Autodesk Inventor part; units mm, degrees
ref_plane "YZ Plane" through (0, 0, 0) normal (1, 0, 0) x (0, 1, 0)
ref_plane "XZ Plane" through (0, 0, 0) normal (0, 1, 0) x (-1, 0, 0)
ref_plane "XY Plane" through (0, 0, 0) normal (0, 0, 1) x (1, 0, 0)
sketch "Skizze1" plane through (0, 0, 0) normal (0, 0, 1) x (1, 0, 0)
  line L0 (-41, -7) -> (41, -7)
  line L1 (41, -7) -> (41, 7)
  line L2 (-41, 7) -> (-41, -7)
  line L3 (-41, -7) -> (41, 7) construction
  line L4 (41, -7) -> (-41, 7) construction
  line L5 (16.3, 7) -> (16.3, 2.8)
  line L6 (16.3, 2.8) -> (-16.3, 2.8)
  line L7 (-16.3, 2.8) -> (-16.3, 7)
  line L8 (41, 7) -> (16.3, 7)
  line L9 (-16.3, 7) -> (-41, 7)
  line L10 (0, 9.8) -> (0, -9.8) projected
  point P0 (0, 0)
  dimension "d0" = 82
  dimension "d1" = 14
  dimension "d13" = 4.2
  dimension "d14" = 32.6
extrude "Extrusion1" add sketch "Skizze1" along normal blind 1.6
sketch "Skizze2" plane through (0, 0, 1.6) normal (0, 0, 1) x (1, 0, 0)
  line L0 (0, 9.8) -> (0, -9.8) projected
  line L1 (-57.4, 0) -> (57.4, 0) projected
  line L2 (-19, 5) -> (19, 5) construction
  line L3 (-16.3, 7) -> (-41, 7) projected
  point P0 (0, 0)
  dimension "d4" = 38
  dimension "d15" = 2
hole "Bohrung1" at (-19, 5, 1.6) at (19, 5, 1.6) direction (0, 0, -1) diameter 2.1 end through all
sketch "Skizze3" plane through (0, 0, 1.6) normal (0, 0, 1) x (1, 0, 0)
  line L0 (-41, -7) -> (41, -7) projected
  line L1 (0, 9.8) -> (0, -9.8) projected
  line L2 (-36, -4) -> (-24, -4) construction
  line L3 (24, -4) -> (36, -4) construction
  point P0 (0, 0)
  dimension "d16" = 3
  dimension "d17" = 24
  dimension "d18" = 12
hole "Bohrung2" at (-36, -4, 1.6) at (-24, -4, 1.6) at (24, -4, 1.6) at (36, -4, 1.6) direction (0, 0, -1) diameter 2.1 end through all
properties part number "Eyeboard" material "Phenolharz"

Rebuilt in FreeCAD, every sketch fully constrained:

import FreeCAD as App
import Part
import Sketcher

doc = App.newDocument("Part")
params = doc.addObject("Spreadsheet::Sheet", "Params")
for row, (alias, value) in enumerate([
    ("sketch1_width", "82 mm"),
    ("sketch1_height", "14 mm"),
    ("sketch1_width2", "32.6 mm"),
    ("sketch1_height2", "4.2 mm"),
    ("pad1_length", "1.6 mm"),
    ("sketch2_diameter", "2.1 mm"),
    ("hole_diameter", "2.1 mm"),
    ("sketch3_diameter", "2.1 mm"),
    ("hole2_diameter", "2.1 mm"),
], start=1):
    params.set(f"A{row}", alias)
    params.set(f"B{row}", "=" + value)
    params.setAlias(f"B{row}", alias)

body = doc.addObject("PartDesign::Body", "Body")

# Sketch on XY plane
sketch1 = doc.addObject("Sketcher::SketchObject", "Sketch")
body.addObject(sketch1)
sketch1.AttachmentSupport = (doc.XY_Plane, [""])
sketch1.MapMode = "FlatFace"
sketch1.addGeometry(Part.LineSegment(App.Vector(-41, 7, 0), App.Vector(-41, -7, 0)), False)
sketch1.addGeometry(Part.LineSegment(App.Vector(-41, -7, 0), App.Vector(41, -7, 0)), False)
sketch1.addGeometry(Part.LineSegment(App.Vector(41, -7, 0), App.Vector(41, 7, 0)), False)
sketch1.addGeometry(Part.LineSegment(App.Vector(41, 7, 0), App.Vector(16.3, 7, 0)), False)
sketch1.addGeometry(Part.LineSegment(App.Vector(16.3, 7, 0), App.Vector(16.3, 2.8, 0)), False)
sketch1.addGeometry(Part.LineSegment(App.Vector(16.3, 2.8, 0), App.Vector(-16.3, 2.8, 0)), False)
sketch1.addGeometry(Part.LineSegment(App.Vector(-16.3, 2.8, 0), App.Vector(-16.3, 7, 0)), False)
sketch1.addGeometry(Part.LineSegment(App.Vector(-16.3, 7, 0), App.Vector(-41, 7, 0)), False)
sketch1.addConstraint(Sketcher.Constraint("Coincident", 0, 2, 1, 1))
sketch1.addConstraint(Sketcher.Constraint("Coincident", 1, 2, 2, 1))
sketch1.addConstraint(Sketcher.Constraint("Coincident", 2, 2, 3, 1))
sketch1.addConstraint(Sketcher.Constraint("Coincident", 3, 2, 4, 1))
sketch1.addConstraint(Sketcher.Constraint("Coincident", 4, 2, 5, 1))
sketch1.addConstraint(Sketcher.Constraint("Coincident", 5, 2, 6, 1))
sketch1.addConstraint(Sketcher.Constraint("Coincident", 6, 2, 7, 1))
sketch1.addConstraint(Sketcher.Constraint("Coincident", 7, 2, 0, 1))
sketch1.addConstraint(Sketcher.Constraint("Vertical", 0))
sketch1.addConstraint(Sketcher.Constraint("Horizontal", 1))
sketch1.addConstraint(Sketcher.Constraint("Vertical", 2))
sketch1.addConstraint(Sketcher.Constraint("Horizontal", 3))
sketch1.addConstraint(Sketcher.Constraint("Vertical", 4))
sketch1.addConstraint(Sketcher.Constraint("Horizontal", 5))
sketch1.addConstraint(Sketcher.Constraint("Vertical", 6))
sketch1.addConstraint(Sketcher.Constraint("Horizontal", 7))
sketch1.addConstraint(Sketcher.Constraint("Symmetric", 0, 2, 2, 2, -1, 1))
sketch1.addConstraint(Sketcher.Constraint("Symmetric", 3, 2, 6, 2, -2))
sketch1.addConstraint(Sketcher.Constraint("DistanceX", 1, 1, 1, 2, 82.0))
sketch1.addConstraint(Sketcher.Constraint("DistanceY", 0, 2, 0, 1, 14.0))
sketch1.addConstraint(Sketcher.Constraint("DistanceX", 5, 2, 5, 1, 32.6))
sketch1.addConstraint(Sketcher.Constraint("DistanceY", 4, 2, 4, 1, 4.2))
sketch1.setExpression("Constraints[18]", "Params.sketch1_width")
sketch1.setExpression("Constraints[19]", "Params.sketch1_height")
sketch1.setExpression("Constraints[20]", "Params.sketch1_width2")
sketch1.setExpression("Constraints[21]", "Params.sketch1_height2")
pad1 = doc.addObject("PartDesign::Pad", "Pad")
body.addObject(pad1)
pad1.Profile = sketch1
pad1.setExpression("Length", "Params.pad1_length")

# Sketch on XY plane
sketch2 = doc.addObject("Sketcher::SketchObject", "Sketch001")
body.addObject(sketch2)
sketch2.AttachmentSupport = (doc.XY_Plane, [""])
sketch2.MapMode = "FlatFace"
sketch2.AttachmentOffset = App.Placement(App.Vector(0, 0, 1.6), App.Rotation())
sketch2.addGeometry(Part.Circle(App.Vector(-19, 5, 0), App.Vector(0, 0, 1), 1.1), False)
sketch2.addGeometry(Part.Circle(App.Vector(19, 5, 0), App.Vector(0, 0, 1), 1.1), False)
sketch2.addConstraint(Sketcher.Constraint("Equal", 0, 1))
sketch2.addConstraint(Sketcher.Constraint("Symmetric", 0, 3, 1, 3, -2))
sketch2.addConstraint(Sketcher.Constraint("Diameter", 0, 2.1))
sketch2.addConstraint(Sketcher.Constraint("DistanceX", 0, 3, -1, 1, 19.0))
sketch2.addConstraint(Sketcher.Constraint("DistanceY", -1, 1, 0, 3, 5.0))
sketch2.setExpression("Constraints[2]", "Params.sketch2_diameter")
doc.recompute()
hole = doc.addObject("PartDesign::Hole", "Hole")
body.addObject(hole)
hole.Profile = sketch2
hole.ThreadType = "None"
hole.setExpression("Diameter", "Params.hole_diameter")
hole.DepthType = "ThroughAll"

# Sketch on XY plane
sketch3 = doc.addObject("Sketcher::SketchObject", "Sketch002")
body.addObject(sketch3)
sketch3.AttachmentSupport = (doc.XY_Plane, [""])
sketch3.MapMode = "FlatFace"
sketch3.AttachmentOffset = App.Placement(App.Vector(0, 0, 1.6), App.Rotation())
sketch3.addGeometry(Part.Circle(App.Vector(-36, -4, 0), App.Vector(0, 0, 1), 1.1), False)
sketch3.addGeometry(Part.Circle(App.Vector(-24, -4, 0), App.Vector(0, 0, 1), 1.1), False)
sketch3.addGeometry(Part.Circle(App.Vector(24, -4, 0), App.Vector(0, 0, 1), 1.1), False)
sketch3.addGeometry(Part.Circle(App.Vector(36, -4, 0), App.Vector(0, 0, 1), 1.1), False)
sketch3.addConstraint(Sketcher.Constraint("Equal", 0, 1))
sketch3.addConstraint(Sketcher.Constraint("Equal", 1, 2))
sketch3.addConstraint(Sketcher.Constraint("Equal", 2, 3))
sketch3.addConstraint(Sketcher.Constraint("Symmetric", 1, 3, 2, 3, -2))
sketch3.addConstraint(Sketcher.Constraint("Symmetric", 0, 3, 3, 3, -2))
sketch3.addConstraint(Sketcher.Constraint("Horizontal", 0, 3, 1, 3))
sketch3.addConstraint(Sketcher.Constraint("Diameter", 0, 2.1))
sketch3.addConstraint(Sketcher.Constraint("DistanceX", 0, 3, -1, 1, 36.0))
sketch3.addConstraint(Sketcher.Constraint("DistanceY", 0, 3, -1, 1, 4.0))
sketch3.addConstraint(Sketcher.Constraint("DistanceX", 1, 3, -1, 1, 24.0))
sketch3.setExpression("Constraints[6]", "Params.sketch3_diameter")
doc.recompute()
hole2 = doc.addObject("PartDesign::Hole", "Hole001")
body.addObject(hole2)
hole2.Profile = sketch3
hole2.ThreadType = "None"
hole2.setExpression("Diameter", "Params.hole2_diameter")
hole2.DepthType = "ThroughAll"

doc.recompute()
